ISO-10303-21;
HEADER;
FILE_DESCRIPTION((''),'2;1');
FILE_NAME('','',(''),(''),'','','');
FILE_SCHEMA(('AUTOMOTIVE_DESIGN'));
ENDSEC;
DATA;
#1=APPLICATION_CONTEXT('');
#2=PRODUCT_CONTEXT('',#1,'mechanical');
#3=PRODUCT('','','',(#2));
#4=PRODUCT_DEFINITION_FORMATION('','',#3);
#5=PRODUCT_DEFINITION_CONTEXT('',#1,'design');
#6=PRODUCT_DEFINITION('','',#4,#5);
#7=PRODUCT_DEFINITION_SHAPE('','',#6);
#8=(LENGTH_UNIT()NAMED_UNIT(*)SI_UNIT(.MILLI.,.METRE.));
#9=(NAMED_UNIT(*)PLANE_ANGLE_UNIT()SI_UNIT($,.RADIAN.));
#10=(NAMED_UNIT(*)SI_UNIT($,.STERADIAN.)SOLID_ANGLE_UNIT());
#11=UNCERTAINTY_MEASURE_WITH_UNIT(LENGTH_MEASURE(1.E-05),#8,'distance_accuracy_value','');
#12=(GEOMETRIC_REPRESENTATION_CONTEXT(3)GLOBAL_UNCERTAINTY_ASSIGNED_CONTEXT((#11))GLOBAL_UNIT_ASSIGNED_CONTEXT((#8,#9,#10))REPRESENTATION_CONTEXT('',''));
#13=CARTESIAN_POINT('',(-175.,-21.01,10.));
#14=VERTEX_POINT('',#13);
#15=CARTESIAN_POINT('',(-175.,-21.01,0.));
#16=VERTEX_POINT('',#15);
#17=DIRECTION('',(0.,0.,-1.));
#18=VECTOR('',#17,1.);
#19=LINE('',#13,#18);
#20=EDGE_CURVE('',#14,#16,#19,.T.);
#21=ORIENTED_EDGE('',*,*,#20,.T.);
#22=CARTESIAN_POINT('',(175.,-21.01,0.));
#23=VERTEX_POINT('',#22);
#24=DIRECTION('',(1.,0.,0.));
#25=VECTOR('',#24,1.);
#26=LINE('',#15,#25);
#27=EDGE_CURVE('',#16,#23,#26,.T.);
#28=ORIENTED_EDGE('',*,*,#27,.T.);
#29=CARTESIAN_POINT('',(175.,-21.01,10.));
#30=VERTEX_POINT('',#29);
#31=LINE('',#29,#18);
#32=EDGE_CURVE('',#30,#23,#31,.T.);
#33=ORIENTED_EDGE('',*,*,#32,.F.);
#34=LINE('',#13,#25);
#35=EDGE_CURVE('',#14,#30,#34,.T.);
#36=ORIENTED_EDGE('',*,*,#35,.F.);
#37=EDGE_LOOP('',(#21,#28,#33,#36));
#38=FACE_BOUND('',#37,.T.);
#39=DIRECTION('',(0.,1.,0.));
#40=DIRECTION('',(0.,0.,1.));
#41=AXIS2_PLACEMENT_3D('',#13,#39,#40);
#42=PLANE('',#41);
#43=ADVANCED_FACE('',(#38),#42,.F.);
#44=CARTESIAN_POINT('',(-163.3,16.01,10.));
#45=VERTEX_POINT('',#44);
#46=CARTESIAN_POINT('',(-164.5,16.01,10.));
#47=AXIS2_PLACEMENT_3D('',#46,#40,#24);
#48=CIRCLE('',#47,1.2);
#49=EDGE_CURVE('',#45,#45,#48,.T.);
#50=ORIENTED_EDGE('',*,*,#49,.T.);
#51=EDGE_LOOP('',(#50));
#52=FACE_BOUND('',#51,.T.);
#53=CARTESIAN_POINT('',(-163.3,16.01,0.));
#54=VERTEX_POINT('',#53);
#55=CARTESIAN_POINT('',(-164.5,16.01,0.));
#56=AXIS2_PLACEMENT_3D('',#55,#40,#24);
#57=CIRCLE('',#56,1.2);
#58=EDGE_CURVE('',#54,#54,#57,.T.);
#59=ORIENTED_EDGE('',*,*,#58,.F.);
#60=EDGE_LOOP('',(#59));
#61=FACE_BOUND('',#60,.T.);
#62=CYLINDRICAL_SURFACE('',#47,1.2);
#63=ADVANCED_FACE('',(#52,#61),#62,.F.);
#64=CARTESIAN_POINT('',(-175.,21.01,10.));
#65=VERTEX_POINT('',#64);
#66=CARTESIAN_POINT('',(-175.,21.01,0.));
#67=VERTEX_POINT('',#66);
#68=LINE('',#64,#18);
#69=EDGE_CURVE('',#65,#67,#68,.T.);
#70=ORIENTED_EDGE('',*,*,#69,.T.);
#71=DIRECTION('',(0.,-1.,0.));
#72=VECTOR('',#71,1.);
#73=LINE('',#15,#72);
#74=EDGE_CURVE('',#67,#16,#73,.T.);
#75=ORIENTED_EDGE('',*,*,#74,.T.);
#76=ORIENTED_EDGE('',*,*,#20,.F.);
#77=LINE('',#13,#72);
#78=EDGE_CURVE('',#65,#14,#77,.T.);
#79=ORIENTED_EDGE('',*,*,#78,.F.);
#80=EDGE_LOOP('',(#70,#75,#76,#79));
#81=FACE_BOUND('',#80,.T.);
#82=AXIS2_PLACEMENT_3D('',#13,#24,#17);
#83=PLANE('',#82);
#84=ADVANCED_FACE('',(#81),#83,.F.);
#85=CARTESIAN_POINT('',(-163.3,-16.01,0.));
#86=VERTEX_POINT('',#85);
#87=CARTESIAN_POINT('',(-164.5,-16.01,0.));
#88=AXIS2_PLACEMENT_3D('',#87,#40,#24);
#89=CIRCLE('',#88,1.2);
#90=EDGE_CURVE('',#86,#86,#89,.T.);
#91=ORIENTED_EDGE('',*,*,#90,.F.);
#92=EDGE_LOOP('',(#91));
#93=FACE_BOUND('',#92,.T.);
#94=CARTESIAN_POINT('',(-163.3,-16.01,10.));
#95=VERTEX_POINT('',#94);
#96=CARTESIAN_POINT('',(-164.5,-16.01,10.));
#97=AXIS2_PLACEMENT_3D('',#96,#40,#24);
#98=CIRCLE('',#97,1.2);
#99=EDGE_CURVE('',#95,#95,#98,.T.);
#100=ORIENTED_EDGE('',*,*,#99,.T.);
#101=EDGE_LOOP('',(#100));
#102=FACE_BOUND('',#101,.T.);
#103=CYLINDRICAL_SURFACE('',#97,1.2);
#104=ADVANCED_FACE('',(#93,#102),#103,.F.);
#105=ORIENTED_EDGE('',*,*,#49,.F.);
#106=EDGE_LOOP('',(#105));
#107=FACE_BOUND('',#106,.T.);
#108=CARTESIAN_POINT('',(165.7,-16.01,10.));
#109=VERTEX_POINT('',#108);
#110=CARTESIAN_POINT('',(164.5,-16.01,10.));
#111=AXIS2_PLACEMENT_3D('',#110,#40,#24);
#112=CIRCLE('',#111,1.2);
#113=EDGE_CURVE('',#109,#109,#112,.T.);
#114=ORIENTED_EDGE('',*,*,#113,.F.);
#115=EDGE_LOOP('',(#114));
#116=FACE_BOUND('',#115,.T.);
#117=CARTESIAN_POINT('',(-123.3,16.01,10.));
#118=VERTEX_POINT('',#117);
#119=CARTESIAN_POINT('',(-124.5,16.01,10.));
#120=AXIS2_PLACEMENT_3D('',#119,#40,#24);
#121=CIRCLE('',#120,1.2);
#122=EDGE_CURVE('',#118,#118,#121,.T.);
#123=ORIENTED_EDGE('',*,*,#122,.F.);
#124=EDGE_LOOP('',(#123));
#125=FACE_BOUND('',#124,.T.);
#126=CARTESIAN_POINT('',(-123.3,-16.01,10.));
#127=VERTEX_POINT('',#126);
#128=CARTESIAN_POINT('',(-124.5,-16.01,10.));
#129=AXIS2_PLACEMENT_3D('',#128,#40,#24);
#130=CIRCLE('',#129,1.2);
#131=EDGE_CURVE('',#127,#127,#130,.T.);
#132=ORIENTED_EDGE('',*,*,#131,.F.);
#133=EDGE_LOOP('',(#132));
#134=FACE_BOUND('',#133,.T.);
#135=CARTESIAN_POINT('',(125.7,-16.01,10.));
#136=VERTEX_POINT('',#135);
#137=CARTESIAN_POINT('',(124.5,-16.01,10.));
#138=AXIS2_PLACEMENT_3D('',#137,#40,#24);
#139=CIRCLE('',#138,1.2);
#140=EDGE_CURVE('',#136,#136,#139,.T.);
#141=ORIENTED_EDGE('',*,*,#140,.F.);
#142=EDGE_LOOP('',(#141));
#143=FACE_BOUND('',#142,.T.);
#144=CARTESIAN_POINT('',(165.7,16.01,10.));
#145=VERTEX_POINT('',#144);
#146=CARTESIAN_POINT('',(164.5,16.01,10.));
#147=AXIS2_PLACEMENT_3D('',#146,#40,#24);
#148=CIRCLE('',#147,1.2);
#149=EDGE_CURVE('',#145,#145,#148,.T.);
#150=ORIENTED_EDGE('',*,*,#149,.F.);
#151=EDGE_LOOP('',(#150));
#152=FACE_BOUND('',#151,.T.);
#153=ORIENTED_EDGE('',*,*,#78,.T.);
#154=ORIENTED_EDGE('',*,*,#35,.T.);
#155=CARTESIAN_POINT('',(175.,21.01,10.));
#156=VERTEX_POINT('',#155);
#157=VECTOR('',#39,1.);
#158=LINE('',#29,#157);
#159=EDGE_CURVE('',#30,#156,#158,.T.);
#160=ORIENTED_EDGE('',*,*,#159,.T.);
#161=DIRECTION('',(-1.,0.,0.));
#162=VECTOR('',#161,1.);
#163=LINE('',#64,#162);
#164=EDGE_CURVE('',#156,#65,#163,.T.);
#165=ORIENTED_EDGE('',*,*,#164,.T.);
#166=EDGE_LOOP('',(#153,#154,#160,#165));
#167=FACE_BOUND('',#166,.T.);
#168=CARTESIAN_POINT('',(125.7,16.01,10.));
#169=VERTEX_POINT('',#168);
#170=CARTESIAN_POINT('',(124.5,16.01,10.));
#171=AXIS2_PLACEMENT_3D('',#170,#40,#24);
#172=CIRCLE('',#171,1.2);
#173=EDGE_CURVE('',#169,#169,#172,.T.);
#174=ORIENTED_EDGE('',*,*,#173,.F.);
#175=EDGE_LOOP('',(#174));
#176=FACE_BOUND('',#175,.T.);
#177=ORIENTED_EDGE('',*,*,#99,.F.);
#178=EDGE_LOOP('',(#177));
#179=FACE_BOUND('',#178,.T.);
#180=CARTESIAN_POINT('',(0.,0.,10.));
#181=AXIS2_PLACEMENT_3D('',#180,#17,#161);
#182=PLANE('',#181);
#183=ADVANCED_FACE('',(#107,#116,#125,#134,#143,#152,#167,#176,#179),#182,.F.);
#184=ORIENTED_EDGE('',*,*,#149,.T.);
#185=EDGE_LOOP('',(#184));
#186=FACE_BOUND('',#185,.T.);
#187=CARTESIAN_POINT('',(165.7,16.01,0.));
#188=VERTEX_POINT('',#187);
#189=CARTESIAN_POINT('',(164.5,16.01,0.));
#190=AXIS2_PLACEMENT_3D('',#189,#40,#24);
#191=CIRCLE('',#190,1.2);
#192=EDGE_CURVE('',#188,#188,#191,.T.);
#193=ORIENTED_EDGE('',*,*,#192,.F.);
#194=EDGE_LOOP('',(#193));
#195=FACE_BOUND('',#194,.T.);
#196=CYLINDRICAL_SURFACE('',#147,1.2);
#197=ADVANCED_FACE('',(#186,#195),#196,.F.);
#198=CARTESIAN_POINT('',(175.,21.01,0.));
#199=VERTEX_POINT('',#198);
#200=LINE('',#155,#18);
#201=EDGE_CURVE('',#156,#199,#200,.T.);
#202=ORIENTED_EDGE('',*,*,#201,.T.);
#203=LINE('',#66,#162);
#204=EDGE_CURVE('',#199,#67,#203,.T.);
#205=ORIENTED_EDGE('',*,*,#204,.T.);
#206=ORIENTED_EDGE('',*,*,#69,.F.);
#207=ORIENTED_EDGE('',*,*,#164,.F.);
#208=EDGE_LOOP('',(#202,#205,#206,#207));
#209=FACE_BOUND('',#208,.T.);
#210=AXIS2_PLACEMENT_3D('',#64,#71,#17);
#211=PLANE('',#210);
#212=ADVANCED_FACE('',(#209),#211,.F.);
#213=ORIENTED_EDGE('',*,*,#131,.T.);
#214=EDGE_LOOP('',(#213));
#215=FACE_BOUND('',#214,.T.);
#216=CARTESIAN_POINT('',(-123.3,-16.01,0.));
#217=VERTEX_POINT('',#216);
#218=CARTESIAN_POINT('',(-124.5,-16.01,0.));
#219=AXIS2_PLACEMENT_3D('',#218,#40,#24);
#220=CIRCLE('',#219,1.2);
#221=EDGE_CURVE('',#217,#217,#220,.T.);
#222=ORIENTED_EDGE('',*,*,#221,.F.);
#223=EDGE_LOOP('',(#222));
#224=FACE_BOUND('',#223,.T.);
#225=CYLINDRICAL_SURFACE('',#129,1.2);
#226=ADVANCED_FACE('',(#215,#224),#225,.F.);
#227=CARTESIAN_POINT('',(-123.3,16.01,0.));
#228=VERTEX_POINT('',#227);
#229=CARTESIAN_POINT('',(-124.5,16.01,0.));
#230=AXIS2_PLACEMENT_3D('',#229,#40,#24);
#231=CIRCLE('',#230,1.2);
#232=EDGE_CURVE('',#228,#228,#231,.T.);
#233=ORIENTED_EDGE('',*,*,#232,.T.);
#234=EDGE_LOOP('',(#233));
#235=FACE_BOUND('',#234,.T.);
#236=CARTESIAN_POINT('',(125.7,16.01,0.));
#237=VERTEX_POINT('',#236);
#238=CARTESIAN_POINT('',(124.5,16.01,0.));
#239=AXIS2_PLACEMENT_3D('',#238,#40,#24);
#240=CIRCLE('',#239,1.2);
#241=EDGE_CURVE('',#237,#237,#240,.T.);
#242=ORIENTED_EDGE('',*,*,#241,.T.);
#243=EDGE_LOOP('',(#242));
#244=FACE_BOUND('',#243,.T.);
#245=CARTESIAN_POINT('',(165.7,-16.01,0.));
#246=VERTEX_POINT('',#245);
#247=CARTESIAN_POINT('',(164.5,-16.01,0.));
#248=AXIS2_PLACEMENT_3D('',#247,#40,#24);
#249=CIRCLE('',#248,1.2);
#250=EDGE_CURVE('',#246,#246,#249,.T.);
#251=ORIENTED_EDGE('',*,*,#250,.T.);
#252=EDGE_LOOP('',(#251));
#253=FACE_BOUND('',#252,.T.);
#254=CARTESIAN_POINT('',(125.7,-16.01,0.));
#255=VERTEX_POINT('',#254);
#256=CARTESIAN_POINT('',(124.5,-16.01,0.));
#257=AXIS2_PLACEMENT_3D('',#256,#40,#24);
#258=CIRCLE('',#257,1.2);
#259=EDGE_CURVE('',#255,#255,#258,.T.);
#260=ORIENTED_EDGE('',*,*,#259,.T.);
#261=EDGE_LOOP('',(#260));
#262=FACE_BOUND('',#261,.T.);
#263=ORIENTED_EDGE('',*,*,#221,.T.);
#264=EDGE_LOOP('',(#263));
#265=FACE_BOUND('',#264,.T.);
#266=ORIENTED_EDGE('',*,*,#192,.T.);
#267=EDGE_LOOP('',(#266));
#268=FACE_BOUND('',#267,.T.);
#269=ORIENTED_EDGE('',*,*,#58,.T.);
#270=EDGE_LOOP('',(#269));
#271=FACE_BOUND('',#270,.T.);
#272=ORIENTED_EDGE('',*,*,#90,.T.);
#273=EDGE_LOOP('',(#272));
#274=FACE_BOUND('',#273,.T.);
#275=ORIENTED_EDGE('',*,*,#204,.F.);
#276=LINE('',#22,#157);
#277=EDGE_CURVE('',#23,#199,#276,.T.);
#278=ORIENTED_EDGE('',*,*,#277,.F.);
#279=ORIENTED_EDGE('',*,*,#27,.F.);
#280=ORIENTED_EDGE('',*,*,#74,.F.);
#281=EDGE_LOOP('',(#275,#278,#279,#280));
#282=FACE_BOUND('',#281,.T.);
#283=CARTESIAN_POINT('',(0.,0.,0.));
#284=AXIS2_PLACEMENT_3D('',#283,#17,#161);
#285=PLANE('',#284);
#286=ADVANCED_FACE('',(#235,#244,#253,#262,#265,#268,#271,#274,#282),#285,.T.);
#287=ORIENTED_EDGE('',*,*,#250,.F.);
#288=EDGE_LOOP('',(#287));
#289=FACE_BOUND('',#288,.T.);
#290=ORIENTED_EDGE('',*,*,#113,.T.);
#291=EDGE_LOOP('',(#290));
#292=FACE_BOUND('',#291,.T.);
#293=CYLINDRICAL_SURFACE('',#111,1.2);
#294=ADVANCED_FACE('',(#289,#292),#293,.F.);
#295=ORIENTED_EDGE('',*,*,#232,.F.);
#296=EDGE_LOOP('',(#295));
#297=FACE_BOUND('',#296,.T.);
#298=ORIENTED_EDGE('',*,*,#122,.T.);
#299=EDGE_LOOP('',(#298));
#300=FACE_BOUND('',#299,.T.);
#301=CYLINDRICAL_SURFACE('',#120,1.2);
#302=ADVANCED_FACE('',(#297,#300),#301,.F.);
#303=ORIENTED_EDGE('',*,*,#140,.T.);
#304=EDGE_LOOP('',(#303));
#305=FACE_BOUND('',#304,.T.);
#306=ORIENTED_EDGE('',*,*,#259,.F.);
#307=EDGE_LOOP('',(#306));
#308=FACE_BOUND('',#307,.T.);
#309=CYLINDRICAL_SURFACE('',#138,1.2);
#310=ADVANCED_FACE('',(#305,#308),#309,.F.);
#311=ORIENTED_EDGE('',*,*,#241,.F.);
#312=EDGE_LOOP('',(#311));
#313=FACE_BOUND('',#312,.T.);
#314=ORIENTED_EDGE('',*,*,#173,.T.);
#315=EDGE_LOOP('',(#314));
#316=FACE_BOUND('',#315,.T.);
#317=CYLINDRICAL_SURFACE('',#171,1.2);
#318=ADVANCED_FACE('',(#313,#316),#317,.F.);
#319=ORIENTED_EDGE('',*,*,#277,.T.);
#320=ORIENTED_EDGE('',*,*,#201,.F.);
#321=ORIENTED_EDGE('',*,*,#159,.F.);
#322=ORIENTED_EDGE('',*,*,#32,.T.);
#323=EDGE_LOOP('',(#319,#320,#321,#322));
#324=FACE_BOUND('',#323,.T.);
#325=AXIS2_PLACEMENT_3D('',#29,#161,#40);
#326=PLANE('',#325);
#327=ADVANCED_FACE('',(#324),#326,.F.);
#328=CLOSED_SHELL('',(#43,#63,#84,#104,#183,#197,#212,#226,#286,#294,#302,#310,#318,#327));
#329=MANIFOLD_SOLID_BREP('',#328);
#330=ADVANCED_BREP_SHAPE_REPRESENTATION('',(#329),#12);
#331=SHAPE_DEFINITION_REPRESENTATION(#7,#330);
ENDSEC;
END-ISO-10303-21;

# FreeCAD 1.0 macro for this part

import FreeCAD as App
import Part
import Sketcher
from FreeCAD import Vector

doc = App.newDocument("Part")
body = doc.addObject("PartDesign::Body", "Body")

# Sketch on XY plane
sketch1 = body.newObject("Sketcher::SketchObject", "Sketch")
sketch1.AttachmentSupport = (doc.getObject("XY_Plane"), [""])
sketch1.MapMode = "FlatFace"
sketch1.addGeometry([
    Part.LineSegment(Vector(-175, 21, 0), Vector(-175, -21, 0)),
    Part.LineSegment(Vector(-175, -21, 0), Vector(175, -21, 0)),
    Part.LineSegment(Vector(175, -21, 0), Vector(175, 21, 0)),
    Part.LineSegment(Vector(175, 21, 0), Vector(-175, 21, 0)),
], False)
sketch1.addConstraint([
    Sketcher.Constraint("Coincident", 0, 2, 1, 1),
    Sketcher.Constraint("Coincident", 1, 2, 2, 1),
    Sketcher.Constraint("Coincident", 2, 2, 3, 1),
    Sketcher.Constraint("Coincident", 3, 2, 0, 1),
    Sketcher.Constraint("Vertical", 0),
    Sketcher.Constraint("Horizontal", 1),
    Sketcher.Constraint("Vertical", 2),
    Sketcher.Constraint("Horizontal", 3),
    Sketcher.Constraint("Symmetric", 0, 2, 2, 2, -1, 1),
    Sketcher.Constraint("DistanceX", 1, 1, 1, 2, 350.0),
    Sketcher.Constraint("DistanceY", 0, 2, 0, 1, 42.02),
])
pad1 = body.newObject("PartDesign::Pad", "Pad")
pad1.Profile = sketch1
pad1.Length = 10

# Sketch on XY plane
sketch2 = body.newObject("Sketcher::SketchObject", "Sketch001")
sketch2.AttachmentSupport = (doc.getObject("XY_Plane"), [""])
sketch2.MapMode = "FlatFace"
sketch2.AttachmentOffset = App.Placement(Vector(0, 0, 10), App.Rotation())
sketch2.addGeometry([
    Part.Circle(Vector(-164.5, 16, 0), Vector(0, 0, 1), 1.2),  # 0
    Part.Circle(Vector(-124.5, 16, 0), Vector(0, 0, 1), 1.2),  # 1
    Part.Circle(Vector(-124.5, -16, 0), Vector(0, 0, 1), 1.2),  # 2
    Part.Circle(Vector(-164.5, -16, 0), Vector(0, 0, 1), 1.2),  # 3
    Part.Circle(Vector(164.5, -16, 0), Vector(0, 0, 1), 1.2),  # 4
    Part.Circle(Vector(124.5, -16, 0), Vector(0, 0, 1), 1.2),  # 5
    Part.Circle(Vector(124.5, 16, 0), Vector(0, 0, 1), 1.2),  # 6
    Part.Circle(Vector(164.5, 16, 0), Vector(0, 0, 1), 1.2),  # 7
], False)
sketch2.addConstraint([
    Sketcher.Constraint("Equal", 0, 1),
    Sketcher.Constraint("Equal", 1, 2),
    Sketcher.Constraint("Equal", 2, 3),
    Sketcher.Constraint("Equal", 3, 4),
    Sketcher.Constraint("Equal", 4, 5),
    Sketcher.Constraint("Equal", 5, 6),
    Sketcher.Constraint("Equal", 6, 7),
    Sketcher.Constraint("Symmetric", 0, 3, 4, 3, -1, 1),
    Sketcher.Constraint("Symmetric", 1, 3, 5, 3, -1, 1),
    Sketcher.Constraint("Symmetric", 2, 3, 6, 3, -1, 1),
    Sketcher.Constraint("Symmetric", 3, 3, 7, 3, -1, 1),
    Sketcher.Constraint("Symmetric", 3, 3, 4, 3, -2),
    Sketcher.Constraint("Symmetric", 2, 3, 5, 3, -2),
    Sketcher.Constraint("Horizontal", 0, 3, 1, 3),
    Sketcher.Constraint("Diameter", 0, 2.4),
    Sketcher.Constraint("DistanceX", 0, 3, 1, 3, 40.0),
    Sketcher.Constraint("DistanceX", 2, 3, 4, 3, 289.0),
    Sketcher.Constraint("DistanceY", -1, 1, 0, 3, 16.01),
])
doc.recompute()
hole = body.newObject("PartDesign::Hole", "Hole")
hole.Profile = sketch2
hole.ThreadType = "None"
hole.Diameter = 2.4
hole.DepthType = "ThroughAll"

doc.recompute()
